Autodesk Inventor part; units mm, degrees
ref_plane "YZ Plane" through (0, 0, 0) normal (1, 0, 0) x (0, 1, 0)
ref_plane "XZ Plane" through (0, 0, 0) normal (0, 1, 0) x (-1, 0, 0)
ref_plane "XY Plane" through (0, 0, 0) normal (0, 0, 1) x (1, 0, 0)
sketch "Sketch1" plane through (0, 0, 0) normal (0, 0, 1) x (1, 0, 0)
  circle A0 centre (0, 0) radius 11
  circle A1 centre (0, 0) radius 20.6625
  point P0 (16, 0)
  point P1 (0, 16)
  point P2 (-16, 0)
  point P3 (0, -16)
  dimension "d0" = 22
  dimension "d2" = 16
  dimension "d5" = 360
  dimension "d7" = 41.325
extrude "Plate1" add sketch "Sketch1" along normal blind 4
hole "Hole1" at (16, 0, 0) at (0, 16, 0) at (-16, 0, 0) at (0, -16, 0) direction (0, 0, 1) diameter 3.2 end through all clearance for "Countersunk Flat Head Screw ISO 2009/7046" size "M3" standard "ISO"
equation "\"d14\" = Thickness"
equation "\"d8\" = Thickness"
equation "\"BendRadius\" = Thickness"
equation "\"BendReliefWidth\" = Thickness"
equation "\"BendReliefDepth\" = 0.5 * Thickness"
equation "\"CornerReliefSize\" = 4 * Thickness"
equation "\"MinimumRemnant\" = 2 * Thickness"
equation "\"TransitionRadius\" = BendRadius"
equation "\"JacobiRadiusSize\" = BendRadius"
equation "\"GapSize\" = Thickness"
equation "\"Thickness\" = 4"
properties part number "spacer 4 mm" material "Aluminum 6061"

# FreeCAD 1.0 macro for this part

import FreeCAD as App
import Part
import Sketcher

doc = App.newDocument("Part")
params = doc.addObject("Spreadsheet::Sheet", "Params")
for row, (alias, value) in enumerate([
    ("sketch1_diameter", "22 mm"),
    ("pad1_length", "4 mm"),
    ("sketch2_diameter", "3.2 mm"),
    ("hole_diameter", "3.2 mm"),
], start=1):
    params.set(f"A{row}", alias)
    params.set(f"B{row}", "=" + value)
    params.setAlias(f"B{row}", alias)

body = doc.addObject("PartDesign::Body", "Body")

sketch1 = doc.addObject("Sketcher::SketchObject", "Sketch")
body.addObject(sketch1)
sketch1.AttachmentSupport = (doc.XY_Plane, [""])
sketch1.MapMode = "FlatFace"
sketch1.addGeometry([
    Part.Circle(App.Vector(0, 0, 0), App.Vector(0, 0, 1), 20.6625),
    Part.Circle(App.Vector(0, 0, 0), App.Vector(0, 0, 1), 11),
], False)
sketch1.addConstraint([
    Sketcher.Constraint("Coincident", 0, 3, -1, 1),
    Sketcher.Constraint("Coincident", 1, 3, -1, 1),
    Sketcher.Constraint("Diameter", 1, 22.0),
    Sketcher.Constraint("Diameter", 0, 41.325),
])
sketch1.setExpression("Constraints[2]", "Params.sketch1_diameter")
pad1 = doc.addObject("PartDesign::Pad", "Pad")
body.addObject(pad1)
pad1.Profile = sketch1
pad1.setExpression("Length", "Params.pad1_length")

sketch2 = doc.addObject("Sketcher::SketchObject", "Sketch001")
body.addObject(sketch2)
sketch2.AttachmentSupport = (doc.XY_Plane, [""])
sketch2.MapMode = "FlatFace"
sketch2.addGeometry([
    Part.Circle(App.Vector(16, 0, 0), App.Vector(0, 0, 1), 1.6),
    Part.Circle(App.Vector(0, 16, 0), App.Vector(0, 0, 1), 1.6),
    Part.Circle(App.Vector(-16, 0, 0), App.Vector(0, 0, 1), 1.6),
    Part.Circle(App.Vector(0, -16, 0), App.Vector(0, 0, 1), 1.6),
], False)
sketch2.addConstraint([
    Sketcher.Constraint("Equal", 0, 1),
    Sketcher.Constraint("Equal", 1, 2),
    Sketcher.Constraint("Equal", 2, 3),
    Sketcher.Constraint("Symmetric", 0, 3, 2, 3, -1, 1),
    Sketcher.Constraint("Symmetric", 1, 3, 3, 3, -1, 1),
    Sketcher.Constraint("PointOnObject", 0, 3, -1),
    Sketcher.Constraint("PointOnObject", 1, 3, -2),
    Sketcher.Constraint("Diameter", 0, 3.2),
    Sketcher.Constraint("DistanceX", -1, 1, 0, 3, 16.0),
    Sketcher.Constraint("DistanceY", -1, 1, 1, 3, 16.0),
])
sketch2.setExpression("Constraints[7]", "Params.sketch2_diameter")
doc.recompute()
hole = doc.addObject("PartDesign::Hole", "Hole")
body.addObject(hole)
hole.Profile = sketch2
hole.ThreadType = "None"
hole.setExpression("Diameter", "Params.hole_diameter")
hole.DepthType = "ThroughAll"
hole.Reversed = True

doc.recompute()
